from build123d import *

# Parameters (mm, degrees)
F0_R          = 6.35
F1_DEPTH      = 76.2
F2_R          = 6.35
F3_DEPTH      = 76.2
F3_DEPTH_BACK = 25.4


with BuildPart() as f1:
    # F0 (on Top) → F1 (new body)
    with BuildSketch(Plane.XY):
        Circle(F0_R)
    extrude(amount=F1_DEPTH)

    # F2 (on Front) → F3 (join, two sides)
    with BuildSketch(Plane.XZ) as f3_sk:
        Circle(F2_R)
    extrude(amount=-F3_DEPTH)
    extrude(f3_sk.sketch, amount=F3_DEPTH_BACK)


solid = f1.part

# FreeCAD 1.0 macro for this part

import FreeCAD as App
import Part
import Sketcher

V = App.Vector
Q = App.Units.Quantity

doc = App.newDocument("Part")
body = doc.addObject("PartDesign::Body", "Body")

# Sketch on XY plane
sketch1 = body.newObject("Sketcher::SketchObject", "Sketch")
sketch1.AttachmentSupport = (doc.getObject("XY_Plane"), [""])
sketch1.MapMode = "FlatFace"
sketch1.addGeometry(Part.Circle(V(0, 0, 0), V(0, 0, 1), 6), False)
sketch1.addConstraint([
    Sketcher.Constraint("Coincident", 0, 3, -1, 1),
    Sketcher.Constraint("Diameter", 0, Q("0.5 in")),
])
pad1 = body.newObject("PartDesign::Pad", "Pad")
pad1.Profile = sketch1
pad1.Length = Q("3 in")

# Sketch on XZ plane
sketch2 = body.newObject("Sketcher::SketchObject", "Sketch001")
sketch2.AttachmentSupport = (doc.getObject("XZ_Plane"), [""])
sketch2.MapMode = "FlatFace"
sketch2.addGeometry(Part.Circle(V(0, 0, 0), V(0, 0, 1), 6), False)
sketch2.addConstraint([
    Sketcher.Constraint("Coincident", 0, 3, -1, 1),
    Sketcher.Constraint("Diameter", 0, Q("0.5 in")),
])
pad2 = body.newObject("PartDesign::Pad", "Pad001")
pad2.Profile = sketch2
pad2.Type = "TwoLengths"
pad2.Length = Q("3 in")
pad2.Length2 = Q("1 in")
pad2.Reversed = True

doc.recompute()
